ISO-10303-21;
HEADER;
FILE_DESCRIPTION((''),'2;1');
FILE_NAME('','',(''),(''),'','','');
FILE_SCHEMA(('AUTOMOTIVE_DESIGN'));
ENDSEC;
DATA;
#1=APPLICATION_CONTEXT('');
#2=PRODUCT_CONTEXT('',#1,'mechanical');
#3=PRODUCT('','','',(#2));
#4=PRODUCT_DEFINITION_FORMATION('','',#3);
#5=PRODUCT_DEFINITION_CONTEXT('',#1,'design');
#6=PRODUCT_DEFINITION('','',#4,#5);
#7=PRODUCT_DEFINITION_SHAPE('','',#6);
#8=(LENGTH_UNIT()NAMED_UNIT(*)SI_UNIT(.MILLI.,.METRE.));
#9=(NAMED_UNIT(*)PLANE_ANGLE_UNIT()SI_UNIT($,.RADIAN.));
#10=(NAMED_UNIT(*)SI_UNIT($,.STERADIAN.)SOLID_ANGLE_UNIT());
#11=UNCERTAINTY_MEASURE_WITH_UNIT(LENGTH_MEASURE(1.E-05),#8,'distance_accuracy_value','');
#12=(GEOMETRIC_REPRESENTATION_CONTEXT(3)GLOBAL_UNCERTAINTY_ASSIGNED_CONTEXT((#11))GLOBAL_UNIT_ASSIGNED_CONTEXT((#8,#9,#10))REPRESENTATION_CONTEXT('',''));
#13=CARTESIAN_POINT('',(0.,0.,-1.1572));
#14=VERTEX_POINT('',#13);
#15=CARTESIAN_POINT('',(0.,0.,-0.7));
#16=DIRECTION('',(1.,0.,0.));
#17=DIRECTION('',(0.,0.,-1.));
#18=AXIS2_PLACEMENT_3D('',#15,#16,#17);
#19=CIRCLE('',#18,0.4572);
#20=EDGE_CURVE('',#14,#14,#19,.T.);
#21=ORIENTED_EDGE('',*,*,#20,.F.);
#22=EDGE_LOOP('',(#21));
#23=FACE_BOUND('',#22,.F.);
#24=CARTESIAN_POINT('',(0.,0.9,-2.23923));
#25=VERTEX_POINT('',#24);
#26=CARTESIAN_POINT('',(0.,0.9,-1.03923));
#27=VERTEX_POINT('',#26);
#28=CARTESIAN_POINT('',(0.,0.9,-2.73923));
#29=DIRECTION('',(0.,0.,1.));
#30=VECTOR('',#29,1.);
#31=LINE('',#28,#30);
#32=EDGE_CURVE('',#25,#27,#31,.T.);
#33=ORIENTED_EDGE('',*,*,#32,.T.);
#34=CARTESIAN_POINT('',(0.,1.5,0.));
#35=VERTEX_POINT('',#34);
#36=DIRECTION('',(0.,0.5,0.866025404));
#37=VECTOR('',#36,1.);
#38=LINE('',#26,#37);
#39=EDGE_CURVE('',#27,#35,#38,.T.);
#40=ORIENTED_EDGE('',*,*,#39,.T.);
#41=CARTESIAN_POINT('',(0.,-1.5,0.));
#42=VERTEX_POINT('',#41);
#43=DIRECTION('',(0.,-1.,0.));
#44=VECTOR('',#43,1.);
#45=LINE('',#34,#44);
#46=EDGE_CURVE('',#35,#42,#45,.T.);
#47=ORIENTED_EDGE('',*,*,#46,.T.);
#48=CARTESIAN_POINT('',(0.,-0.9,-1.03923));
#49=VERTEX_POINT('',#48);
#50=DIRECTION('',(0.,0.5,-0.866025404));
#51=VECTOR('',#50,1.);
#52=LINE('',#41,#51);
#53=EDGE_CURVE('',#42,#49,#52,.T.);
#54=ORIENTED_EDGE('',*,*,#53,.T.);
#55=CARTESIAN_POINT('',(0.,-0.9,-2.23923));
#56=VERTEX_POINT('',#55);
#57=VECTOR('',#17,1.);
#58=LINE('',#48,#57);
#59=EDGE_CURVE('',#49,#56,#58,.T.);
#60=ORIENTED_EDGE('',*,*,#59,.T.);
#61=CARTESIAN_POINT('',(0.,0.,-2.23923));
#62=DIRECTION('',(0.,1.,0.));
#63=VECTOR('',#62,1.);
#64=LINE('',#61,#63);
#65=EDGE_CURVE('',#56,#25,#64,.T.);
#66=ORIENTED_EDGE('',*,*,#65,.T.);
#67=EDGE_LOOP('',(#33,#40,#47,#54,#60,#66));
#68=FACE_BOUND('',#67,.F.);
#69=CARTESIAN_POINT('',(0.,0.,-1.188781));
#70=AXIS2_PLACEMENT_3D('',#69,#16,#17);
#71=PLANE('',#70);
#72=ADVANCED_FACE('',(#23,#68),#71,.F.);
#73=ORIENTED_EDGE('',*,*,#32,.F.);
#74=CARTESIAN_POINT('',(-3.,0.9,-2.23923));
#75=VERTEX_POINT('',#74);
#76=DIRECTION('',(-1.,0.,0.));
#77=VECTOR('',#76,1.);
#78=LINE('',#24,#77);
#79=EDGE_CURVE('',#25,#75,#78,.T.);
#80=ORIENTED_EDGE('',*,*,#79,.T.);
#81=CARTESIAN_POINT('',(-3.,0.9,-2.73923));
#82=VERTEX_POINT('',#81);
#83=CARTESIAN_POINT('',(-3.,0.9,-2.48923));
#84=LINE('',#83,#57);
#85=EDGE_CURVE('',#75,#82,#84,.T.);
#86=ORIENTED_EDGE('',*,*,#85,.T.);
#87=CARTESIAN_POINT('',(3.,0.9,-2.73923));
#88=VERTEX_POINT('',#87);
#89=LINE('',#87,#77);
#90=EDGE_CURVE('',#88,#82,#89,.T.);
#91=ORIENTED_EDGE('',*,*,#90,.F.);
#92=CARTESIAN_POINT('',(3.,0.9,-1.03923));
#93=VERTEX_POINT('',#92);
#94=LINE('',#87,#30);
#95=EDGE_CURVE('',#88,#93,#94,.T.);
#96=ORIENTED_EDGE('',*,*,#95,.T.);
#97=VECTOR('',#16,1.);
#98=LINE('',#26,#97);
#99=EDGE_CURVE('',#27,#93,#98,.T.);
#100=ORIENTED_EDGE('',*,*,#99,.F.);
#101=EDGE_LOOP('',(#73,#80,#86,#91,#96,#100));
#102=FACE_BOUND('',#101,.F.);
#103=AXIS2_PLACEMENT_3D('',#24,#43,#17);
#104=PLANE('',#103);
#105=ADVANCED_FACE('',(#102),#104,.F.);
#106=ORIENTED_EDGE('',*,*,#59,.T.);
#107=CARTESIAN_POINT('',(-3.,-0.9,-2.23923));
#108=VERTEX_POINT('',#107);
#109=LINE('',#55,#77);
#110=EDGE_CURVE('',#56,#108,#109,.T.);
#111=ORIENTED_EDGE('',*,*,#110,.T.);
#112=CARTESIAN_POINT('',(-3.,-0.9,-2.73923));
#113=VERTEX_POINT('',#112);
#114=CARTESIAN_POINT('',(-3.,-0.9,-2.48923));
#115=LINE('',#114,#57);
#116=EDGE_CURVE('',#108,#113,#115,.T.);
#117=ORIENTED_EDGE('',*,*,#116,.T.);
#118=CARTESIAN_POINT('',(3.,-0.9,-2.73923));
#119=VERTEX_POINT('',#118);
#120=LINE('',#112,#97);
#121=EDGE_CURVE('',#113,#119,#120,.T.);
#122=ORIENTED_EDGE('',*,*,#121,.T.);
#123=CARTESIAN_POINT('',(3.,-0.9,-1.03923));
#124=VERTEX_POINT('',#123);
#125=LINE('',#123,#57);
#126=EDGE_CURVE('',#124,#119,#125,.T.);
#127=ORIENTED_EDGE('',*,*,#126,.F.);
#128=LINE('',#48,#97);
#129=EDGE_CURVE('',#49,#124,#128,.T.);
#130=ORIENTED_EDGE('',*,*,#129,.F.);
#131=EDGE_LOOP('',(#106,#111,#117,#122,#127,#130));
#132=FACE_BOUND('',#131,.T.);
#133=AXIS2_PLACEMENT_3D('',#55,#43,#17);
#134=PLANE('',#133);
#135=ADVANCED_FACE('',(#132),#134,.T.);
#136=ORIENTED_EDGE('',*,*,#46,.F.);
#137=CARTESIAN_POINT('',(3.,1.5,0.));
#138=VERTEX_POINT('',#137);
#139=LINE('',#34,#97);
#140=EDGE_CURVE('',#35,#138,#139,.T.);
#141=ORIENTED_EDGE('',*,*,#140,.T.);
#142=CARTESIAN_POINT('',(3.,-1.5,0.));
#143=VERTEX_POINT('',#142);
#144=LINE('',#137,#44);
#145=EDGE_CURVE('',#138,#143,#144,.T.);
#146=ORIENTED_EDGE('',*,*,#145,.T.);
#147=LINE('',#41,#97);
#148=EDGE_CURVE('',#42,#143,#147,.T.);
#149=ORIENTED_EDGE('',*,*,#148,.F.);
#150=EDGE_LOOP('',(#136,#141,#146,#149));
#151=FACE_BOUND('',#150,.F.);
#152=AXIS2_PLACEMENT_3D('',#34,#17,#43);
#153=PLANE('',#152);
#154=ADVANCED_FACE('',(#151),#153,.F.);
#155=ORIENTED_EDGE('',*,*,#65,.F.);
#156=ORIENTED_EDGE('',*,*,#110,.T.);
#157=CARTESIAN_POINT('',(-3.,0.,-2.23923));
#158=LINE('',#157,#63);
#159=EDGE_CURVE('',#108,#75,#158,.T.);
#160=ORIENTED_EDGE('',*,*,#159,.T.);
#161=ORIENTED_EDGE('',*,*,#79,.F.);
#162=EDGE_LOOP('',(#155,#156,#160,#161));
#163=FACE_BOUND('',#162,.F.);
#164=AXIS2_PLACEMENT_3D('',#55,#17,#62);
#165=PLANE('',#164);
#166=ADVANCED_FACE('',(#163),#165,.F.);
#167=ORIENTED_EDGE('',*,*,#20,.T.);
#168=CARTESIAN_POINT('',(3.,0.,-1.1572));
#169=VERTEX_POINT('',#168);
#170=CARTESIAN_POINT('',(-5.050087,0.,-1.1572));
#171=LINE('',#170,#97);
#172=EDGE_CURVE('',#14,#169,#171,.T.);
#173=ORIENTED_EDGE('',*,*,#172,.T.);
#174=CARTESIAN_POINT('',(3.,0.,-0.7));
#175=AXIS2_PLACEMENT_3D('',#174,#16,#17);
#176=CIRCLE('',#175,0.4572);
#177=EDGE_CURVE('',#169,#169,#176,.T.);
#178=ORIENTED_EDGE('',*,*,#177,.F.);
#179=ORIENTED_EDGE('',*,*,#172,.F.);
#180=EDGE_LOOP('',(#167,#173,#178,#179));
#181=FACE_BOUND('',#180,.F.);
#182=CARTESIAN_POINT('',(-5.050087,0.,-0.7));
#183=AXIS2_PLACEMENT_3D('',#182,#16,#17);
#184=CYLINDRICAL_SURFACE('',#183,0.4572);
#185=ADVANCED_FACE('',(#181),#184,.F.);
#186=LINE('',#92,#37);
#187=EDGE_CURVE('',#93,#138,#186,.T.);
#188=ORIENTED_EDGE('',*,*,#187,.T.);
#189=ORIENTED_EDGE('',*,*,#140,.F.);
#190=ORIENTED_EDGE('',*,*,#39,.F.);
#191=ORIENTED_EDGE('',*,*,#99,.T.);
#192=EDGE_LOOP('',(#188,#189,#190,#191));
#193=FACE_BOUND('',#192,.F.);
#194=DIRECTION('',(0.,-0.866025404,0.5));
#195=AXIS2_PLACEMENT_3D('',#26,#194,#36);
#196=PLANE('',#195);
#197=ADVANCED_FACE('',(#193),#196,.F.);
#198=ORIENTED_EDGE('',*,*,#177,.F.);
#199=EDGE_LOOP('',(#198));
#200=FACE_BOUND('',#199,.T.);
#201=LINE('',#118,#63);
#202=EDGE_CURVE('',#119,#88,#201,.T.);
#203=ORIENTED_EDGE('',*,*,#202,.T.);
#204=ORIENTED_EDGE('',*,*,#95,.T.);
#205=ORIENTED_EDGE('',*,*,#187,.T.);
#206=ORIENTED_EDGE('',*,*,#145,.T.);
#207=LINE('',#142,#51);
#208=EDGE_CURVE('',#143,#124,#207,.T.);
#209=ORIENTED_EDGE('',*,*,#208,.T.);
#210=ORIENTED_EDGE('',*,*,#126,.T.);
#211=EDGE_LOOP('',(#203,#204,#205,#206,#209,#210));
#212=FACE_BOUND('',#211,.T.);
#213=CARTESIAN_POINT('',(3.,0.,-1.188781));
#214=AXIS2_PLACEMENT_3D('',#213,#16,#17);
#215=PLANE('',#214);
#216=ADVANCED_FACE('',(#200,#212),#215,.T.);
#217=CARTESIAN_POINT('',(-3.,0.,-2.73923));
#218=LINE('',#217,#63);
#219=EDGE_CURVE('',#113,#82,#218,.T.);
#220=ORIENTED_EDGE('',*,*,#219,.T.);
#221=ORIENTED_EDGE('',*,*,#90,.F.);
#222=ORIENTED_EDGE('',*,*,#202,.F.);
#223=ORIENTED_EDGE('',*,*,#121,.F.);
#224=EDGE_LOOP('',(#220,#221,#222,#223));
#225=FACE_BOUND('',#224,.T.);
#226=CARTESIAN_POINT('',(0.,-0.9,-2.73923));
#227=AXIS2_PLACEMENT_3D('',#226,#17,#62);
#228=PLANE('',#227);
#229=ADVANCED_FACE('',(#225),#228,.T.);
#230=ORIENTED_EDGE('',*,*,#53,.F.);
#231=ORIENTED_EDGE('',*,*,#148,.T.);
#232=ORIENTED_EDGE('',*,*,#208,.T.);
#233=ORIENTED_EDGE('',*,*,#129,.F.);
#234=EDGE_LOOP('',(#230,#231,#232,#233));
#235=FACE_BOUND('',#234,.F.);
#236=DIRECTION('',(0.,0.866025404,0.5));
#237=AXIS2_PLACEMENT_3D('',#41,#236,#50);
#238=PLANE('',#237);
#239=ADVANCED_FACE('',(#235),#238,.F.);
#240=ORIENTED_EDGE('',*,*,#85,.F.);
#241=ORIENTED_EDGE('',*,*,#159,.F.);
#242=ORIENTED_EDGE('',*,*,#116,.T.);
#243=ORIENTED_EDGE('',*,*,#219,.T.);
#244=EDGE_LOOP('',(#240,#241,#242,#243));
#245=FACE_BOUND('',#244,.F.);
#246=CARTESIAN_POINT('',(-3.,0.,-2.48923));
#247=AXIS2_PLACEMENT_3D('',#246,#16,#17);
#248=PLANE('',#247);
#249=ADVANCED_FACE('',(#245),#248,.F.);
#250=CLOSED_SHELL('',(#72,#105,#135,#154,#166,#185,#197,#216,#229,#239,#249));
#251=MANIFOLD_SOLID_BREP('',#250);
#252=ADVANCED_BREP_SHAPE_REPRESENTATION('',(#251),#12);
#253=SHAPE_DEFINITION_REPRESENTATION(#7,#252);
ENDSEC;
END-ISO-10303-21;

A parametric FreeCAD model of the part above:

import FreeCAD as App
import Part
import Sketcher
from FreeCAD import Vector
Q = App.Units.Quantity

doc = App.newDocument("Part")
body = doc.addObject("PartDesign::Body", "Body")

# Sketch on YZ plane
sketch1 = body.newObject("Sketcher::SketchObject", "Sketch")
sketch1.AttachmentSupport = (doc.getObject("YZ_Plane"), [""])
sketch1.MapMode = "FlatFace"
sketch1.addGeometry([
    Part.LineSegment(Vector(1.5, 0, 0), Vector(-1.5, 0, 0)),  # 0
    Part.LineSegment(Vector(-1.5, 0, 0), Vector(-0.9, -1, 0)),  # 1
    Part.LineSegment(Vector(-0.9, -1, 0), Vector(-0.9, -2.7, 0)),  # 2
    Part.LineSegment(Vector(-0.9, -2.7, 0), Vector(0.9, -2.7, 0)),  # 3
    Part.LineSegment(Vector(0.9, -2.7, 0), Vector(0.9, -1, 0)),  # 4
    Part.LineSegment(Vector(0.9, -1, 0), Vector(1.5, 0, 0)),  # 5
], False)
sketch1.addConstraint([
    Sketcher.Constraint("Coincident", 0, 2, 1, 1),
    Sketcher.Constraint("Coincident", 1, 2, 2, 1),
    Sketcher.Constraint("Coincident", 2, 2, 3, 1),
    Sketcher.Constraint("Coincident", 3, 2, 4, 1),
    Sketcher.Constraint("Coincident", 4, 2, 5, 1),
    Sketcher.Constraint("Coincident", 5, 2, 0, 1),
    Sketcher.Constraint("Horizontal", 0),
    Sketcher.Constraint("Vertical", 2),
    Sketcher.Constraint("Horizontal", 3),
    Sketcher.Constraint("Vertical", 4),
    Sketcher.Constraint("Symmetric", 0, 2, 5, 2, -1, 1),
    Sketcher.Constraint("Symmetric", 1, 2, 4, 2, -2),
    Sketcher.Constraint("DistanceX", 0, 2, 0, 1, 3.0),
    Sketcher.Constraint("Angle", 1, Q("-60 deg")),
    Sketcher.Constraint("DistanceX", 3, 1, 3, 2, 1.8),
    Sketcher.Constraint("DistanceY", 2, 2, 2, 1, 1.7),
])
pad1 = body.newObject("PartDesign::Pad", "Pad")
pad1.Profile = sketch1
pad1.Length = 3

# Sketch on YZ plane
sketch2 = body.newObject("Sketcher::SketchObject", "Sketch001")
sketch2.AttachmentSupport = (doc.getObject("YZ_Plane"), [""])
sketch2.MapMode = "FlatFace"
sketch2.addGeometry(Part.Circle(Vector(0, -0.7, 0), Vector(0, 0, 1), 0.46), False)
sketch2.addConstraint([
    Sketcher.Constraint("PointOnObject", 0, 3, -2),
    Sketcher.Constraint("Diameter", 0, 0.9144),
    Sketcher.Constraint("DistanceY", 0, 3, -1, 1, 0.7),
])
doc.recompute()
hole = body.newObject("PartDesign::Hole", "Hole")
hole.Profile = sketch2
hole.ThreadType = "None"
hole.Diameter = 0.9144
hole.DepthType = "ThroughAll"
hole.Reversed = True

# Sketch on YZ plane
sketch3 = body.newObject("Sketcher::SketchObject", "Sketch002")
sketch3.AttachmentSupport = (doc.getObject("YZ_Plane"), [""])
sketch3.MapMode = "FlatFace"
sketch3.addGeometry([
    Part.LineSegment(Vector(0.9, -2.2, 0), Vector(-0.9, -2.2, 0)),
    Part.LineSegment(Vector(-0.9, -2.2, 0), Vector(-0.9, -2.7, 0)),
    Part.LineSegment(Vector(-0.9, -2.7, 0), Vector(0.9, -2.7, 0)),
    Part.LineSegment(Vector(0.9, -2.7, 0), Vector(0.9, -2.2, 0)),
], False)
sketch3.addConstraint([
    Sketcher.Constraint("Coincident", 0, 2, 1, 1),
    Sketcher.Constraint("Coincident", 1, 2, 2, 1),
    Sketcher.Constraint("Coincident", 2, 2, 3, 1),
    Sketcher.Constraint("Coincident", 3, 2, 0, 1),
    Sketcher.Constraint("Horizontal", 0),
    Sketcher.Constraint("Vertical", 1),
    Sketcher.Constraint("Horizontal", 2),
    Sketcher.Constraint("Vertical", 3),
    Sketcher.Constraint("DistanceX", 0, 2, 0, 1, 1.8),
    Sketcher.Constraint("DistanceY", 1, 2, 1, 1, 0.5),
    Sketcher.Constraint("DistanceX", 0, 2, -1, 1, 0.9),
    Sketcher.Constraint("DistanceY", 0, 2, -1, 1, 2.23923),
])
pad2 = body.newObject("PartDesign::Pad", "Pad001")
pad2.Profile = sketch3
pad2.Length = 3
pad2.Reversed = True

doc.recompute()
